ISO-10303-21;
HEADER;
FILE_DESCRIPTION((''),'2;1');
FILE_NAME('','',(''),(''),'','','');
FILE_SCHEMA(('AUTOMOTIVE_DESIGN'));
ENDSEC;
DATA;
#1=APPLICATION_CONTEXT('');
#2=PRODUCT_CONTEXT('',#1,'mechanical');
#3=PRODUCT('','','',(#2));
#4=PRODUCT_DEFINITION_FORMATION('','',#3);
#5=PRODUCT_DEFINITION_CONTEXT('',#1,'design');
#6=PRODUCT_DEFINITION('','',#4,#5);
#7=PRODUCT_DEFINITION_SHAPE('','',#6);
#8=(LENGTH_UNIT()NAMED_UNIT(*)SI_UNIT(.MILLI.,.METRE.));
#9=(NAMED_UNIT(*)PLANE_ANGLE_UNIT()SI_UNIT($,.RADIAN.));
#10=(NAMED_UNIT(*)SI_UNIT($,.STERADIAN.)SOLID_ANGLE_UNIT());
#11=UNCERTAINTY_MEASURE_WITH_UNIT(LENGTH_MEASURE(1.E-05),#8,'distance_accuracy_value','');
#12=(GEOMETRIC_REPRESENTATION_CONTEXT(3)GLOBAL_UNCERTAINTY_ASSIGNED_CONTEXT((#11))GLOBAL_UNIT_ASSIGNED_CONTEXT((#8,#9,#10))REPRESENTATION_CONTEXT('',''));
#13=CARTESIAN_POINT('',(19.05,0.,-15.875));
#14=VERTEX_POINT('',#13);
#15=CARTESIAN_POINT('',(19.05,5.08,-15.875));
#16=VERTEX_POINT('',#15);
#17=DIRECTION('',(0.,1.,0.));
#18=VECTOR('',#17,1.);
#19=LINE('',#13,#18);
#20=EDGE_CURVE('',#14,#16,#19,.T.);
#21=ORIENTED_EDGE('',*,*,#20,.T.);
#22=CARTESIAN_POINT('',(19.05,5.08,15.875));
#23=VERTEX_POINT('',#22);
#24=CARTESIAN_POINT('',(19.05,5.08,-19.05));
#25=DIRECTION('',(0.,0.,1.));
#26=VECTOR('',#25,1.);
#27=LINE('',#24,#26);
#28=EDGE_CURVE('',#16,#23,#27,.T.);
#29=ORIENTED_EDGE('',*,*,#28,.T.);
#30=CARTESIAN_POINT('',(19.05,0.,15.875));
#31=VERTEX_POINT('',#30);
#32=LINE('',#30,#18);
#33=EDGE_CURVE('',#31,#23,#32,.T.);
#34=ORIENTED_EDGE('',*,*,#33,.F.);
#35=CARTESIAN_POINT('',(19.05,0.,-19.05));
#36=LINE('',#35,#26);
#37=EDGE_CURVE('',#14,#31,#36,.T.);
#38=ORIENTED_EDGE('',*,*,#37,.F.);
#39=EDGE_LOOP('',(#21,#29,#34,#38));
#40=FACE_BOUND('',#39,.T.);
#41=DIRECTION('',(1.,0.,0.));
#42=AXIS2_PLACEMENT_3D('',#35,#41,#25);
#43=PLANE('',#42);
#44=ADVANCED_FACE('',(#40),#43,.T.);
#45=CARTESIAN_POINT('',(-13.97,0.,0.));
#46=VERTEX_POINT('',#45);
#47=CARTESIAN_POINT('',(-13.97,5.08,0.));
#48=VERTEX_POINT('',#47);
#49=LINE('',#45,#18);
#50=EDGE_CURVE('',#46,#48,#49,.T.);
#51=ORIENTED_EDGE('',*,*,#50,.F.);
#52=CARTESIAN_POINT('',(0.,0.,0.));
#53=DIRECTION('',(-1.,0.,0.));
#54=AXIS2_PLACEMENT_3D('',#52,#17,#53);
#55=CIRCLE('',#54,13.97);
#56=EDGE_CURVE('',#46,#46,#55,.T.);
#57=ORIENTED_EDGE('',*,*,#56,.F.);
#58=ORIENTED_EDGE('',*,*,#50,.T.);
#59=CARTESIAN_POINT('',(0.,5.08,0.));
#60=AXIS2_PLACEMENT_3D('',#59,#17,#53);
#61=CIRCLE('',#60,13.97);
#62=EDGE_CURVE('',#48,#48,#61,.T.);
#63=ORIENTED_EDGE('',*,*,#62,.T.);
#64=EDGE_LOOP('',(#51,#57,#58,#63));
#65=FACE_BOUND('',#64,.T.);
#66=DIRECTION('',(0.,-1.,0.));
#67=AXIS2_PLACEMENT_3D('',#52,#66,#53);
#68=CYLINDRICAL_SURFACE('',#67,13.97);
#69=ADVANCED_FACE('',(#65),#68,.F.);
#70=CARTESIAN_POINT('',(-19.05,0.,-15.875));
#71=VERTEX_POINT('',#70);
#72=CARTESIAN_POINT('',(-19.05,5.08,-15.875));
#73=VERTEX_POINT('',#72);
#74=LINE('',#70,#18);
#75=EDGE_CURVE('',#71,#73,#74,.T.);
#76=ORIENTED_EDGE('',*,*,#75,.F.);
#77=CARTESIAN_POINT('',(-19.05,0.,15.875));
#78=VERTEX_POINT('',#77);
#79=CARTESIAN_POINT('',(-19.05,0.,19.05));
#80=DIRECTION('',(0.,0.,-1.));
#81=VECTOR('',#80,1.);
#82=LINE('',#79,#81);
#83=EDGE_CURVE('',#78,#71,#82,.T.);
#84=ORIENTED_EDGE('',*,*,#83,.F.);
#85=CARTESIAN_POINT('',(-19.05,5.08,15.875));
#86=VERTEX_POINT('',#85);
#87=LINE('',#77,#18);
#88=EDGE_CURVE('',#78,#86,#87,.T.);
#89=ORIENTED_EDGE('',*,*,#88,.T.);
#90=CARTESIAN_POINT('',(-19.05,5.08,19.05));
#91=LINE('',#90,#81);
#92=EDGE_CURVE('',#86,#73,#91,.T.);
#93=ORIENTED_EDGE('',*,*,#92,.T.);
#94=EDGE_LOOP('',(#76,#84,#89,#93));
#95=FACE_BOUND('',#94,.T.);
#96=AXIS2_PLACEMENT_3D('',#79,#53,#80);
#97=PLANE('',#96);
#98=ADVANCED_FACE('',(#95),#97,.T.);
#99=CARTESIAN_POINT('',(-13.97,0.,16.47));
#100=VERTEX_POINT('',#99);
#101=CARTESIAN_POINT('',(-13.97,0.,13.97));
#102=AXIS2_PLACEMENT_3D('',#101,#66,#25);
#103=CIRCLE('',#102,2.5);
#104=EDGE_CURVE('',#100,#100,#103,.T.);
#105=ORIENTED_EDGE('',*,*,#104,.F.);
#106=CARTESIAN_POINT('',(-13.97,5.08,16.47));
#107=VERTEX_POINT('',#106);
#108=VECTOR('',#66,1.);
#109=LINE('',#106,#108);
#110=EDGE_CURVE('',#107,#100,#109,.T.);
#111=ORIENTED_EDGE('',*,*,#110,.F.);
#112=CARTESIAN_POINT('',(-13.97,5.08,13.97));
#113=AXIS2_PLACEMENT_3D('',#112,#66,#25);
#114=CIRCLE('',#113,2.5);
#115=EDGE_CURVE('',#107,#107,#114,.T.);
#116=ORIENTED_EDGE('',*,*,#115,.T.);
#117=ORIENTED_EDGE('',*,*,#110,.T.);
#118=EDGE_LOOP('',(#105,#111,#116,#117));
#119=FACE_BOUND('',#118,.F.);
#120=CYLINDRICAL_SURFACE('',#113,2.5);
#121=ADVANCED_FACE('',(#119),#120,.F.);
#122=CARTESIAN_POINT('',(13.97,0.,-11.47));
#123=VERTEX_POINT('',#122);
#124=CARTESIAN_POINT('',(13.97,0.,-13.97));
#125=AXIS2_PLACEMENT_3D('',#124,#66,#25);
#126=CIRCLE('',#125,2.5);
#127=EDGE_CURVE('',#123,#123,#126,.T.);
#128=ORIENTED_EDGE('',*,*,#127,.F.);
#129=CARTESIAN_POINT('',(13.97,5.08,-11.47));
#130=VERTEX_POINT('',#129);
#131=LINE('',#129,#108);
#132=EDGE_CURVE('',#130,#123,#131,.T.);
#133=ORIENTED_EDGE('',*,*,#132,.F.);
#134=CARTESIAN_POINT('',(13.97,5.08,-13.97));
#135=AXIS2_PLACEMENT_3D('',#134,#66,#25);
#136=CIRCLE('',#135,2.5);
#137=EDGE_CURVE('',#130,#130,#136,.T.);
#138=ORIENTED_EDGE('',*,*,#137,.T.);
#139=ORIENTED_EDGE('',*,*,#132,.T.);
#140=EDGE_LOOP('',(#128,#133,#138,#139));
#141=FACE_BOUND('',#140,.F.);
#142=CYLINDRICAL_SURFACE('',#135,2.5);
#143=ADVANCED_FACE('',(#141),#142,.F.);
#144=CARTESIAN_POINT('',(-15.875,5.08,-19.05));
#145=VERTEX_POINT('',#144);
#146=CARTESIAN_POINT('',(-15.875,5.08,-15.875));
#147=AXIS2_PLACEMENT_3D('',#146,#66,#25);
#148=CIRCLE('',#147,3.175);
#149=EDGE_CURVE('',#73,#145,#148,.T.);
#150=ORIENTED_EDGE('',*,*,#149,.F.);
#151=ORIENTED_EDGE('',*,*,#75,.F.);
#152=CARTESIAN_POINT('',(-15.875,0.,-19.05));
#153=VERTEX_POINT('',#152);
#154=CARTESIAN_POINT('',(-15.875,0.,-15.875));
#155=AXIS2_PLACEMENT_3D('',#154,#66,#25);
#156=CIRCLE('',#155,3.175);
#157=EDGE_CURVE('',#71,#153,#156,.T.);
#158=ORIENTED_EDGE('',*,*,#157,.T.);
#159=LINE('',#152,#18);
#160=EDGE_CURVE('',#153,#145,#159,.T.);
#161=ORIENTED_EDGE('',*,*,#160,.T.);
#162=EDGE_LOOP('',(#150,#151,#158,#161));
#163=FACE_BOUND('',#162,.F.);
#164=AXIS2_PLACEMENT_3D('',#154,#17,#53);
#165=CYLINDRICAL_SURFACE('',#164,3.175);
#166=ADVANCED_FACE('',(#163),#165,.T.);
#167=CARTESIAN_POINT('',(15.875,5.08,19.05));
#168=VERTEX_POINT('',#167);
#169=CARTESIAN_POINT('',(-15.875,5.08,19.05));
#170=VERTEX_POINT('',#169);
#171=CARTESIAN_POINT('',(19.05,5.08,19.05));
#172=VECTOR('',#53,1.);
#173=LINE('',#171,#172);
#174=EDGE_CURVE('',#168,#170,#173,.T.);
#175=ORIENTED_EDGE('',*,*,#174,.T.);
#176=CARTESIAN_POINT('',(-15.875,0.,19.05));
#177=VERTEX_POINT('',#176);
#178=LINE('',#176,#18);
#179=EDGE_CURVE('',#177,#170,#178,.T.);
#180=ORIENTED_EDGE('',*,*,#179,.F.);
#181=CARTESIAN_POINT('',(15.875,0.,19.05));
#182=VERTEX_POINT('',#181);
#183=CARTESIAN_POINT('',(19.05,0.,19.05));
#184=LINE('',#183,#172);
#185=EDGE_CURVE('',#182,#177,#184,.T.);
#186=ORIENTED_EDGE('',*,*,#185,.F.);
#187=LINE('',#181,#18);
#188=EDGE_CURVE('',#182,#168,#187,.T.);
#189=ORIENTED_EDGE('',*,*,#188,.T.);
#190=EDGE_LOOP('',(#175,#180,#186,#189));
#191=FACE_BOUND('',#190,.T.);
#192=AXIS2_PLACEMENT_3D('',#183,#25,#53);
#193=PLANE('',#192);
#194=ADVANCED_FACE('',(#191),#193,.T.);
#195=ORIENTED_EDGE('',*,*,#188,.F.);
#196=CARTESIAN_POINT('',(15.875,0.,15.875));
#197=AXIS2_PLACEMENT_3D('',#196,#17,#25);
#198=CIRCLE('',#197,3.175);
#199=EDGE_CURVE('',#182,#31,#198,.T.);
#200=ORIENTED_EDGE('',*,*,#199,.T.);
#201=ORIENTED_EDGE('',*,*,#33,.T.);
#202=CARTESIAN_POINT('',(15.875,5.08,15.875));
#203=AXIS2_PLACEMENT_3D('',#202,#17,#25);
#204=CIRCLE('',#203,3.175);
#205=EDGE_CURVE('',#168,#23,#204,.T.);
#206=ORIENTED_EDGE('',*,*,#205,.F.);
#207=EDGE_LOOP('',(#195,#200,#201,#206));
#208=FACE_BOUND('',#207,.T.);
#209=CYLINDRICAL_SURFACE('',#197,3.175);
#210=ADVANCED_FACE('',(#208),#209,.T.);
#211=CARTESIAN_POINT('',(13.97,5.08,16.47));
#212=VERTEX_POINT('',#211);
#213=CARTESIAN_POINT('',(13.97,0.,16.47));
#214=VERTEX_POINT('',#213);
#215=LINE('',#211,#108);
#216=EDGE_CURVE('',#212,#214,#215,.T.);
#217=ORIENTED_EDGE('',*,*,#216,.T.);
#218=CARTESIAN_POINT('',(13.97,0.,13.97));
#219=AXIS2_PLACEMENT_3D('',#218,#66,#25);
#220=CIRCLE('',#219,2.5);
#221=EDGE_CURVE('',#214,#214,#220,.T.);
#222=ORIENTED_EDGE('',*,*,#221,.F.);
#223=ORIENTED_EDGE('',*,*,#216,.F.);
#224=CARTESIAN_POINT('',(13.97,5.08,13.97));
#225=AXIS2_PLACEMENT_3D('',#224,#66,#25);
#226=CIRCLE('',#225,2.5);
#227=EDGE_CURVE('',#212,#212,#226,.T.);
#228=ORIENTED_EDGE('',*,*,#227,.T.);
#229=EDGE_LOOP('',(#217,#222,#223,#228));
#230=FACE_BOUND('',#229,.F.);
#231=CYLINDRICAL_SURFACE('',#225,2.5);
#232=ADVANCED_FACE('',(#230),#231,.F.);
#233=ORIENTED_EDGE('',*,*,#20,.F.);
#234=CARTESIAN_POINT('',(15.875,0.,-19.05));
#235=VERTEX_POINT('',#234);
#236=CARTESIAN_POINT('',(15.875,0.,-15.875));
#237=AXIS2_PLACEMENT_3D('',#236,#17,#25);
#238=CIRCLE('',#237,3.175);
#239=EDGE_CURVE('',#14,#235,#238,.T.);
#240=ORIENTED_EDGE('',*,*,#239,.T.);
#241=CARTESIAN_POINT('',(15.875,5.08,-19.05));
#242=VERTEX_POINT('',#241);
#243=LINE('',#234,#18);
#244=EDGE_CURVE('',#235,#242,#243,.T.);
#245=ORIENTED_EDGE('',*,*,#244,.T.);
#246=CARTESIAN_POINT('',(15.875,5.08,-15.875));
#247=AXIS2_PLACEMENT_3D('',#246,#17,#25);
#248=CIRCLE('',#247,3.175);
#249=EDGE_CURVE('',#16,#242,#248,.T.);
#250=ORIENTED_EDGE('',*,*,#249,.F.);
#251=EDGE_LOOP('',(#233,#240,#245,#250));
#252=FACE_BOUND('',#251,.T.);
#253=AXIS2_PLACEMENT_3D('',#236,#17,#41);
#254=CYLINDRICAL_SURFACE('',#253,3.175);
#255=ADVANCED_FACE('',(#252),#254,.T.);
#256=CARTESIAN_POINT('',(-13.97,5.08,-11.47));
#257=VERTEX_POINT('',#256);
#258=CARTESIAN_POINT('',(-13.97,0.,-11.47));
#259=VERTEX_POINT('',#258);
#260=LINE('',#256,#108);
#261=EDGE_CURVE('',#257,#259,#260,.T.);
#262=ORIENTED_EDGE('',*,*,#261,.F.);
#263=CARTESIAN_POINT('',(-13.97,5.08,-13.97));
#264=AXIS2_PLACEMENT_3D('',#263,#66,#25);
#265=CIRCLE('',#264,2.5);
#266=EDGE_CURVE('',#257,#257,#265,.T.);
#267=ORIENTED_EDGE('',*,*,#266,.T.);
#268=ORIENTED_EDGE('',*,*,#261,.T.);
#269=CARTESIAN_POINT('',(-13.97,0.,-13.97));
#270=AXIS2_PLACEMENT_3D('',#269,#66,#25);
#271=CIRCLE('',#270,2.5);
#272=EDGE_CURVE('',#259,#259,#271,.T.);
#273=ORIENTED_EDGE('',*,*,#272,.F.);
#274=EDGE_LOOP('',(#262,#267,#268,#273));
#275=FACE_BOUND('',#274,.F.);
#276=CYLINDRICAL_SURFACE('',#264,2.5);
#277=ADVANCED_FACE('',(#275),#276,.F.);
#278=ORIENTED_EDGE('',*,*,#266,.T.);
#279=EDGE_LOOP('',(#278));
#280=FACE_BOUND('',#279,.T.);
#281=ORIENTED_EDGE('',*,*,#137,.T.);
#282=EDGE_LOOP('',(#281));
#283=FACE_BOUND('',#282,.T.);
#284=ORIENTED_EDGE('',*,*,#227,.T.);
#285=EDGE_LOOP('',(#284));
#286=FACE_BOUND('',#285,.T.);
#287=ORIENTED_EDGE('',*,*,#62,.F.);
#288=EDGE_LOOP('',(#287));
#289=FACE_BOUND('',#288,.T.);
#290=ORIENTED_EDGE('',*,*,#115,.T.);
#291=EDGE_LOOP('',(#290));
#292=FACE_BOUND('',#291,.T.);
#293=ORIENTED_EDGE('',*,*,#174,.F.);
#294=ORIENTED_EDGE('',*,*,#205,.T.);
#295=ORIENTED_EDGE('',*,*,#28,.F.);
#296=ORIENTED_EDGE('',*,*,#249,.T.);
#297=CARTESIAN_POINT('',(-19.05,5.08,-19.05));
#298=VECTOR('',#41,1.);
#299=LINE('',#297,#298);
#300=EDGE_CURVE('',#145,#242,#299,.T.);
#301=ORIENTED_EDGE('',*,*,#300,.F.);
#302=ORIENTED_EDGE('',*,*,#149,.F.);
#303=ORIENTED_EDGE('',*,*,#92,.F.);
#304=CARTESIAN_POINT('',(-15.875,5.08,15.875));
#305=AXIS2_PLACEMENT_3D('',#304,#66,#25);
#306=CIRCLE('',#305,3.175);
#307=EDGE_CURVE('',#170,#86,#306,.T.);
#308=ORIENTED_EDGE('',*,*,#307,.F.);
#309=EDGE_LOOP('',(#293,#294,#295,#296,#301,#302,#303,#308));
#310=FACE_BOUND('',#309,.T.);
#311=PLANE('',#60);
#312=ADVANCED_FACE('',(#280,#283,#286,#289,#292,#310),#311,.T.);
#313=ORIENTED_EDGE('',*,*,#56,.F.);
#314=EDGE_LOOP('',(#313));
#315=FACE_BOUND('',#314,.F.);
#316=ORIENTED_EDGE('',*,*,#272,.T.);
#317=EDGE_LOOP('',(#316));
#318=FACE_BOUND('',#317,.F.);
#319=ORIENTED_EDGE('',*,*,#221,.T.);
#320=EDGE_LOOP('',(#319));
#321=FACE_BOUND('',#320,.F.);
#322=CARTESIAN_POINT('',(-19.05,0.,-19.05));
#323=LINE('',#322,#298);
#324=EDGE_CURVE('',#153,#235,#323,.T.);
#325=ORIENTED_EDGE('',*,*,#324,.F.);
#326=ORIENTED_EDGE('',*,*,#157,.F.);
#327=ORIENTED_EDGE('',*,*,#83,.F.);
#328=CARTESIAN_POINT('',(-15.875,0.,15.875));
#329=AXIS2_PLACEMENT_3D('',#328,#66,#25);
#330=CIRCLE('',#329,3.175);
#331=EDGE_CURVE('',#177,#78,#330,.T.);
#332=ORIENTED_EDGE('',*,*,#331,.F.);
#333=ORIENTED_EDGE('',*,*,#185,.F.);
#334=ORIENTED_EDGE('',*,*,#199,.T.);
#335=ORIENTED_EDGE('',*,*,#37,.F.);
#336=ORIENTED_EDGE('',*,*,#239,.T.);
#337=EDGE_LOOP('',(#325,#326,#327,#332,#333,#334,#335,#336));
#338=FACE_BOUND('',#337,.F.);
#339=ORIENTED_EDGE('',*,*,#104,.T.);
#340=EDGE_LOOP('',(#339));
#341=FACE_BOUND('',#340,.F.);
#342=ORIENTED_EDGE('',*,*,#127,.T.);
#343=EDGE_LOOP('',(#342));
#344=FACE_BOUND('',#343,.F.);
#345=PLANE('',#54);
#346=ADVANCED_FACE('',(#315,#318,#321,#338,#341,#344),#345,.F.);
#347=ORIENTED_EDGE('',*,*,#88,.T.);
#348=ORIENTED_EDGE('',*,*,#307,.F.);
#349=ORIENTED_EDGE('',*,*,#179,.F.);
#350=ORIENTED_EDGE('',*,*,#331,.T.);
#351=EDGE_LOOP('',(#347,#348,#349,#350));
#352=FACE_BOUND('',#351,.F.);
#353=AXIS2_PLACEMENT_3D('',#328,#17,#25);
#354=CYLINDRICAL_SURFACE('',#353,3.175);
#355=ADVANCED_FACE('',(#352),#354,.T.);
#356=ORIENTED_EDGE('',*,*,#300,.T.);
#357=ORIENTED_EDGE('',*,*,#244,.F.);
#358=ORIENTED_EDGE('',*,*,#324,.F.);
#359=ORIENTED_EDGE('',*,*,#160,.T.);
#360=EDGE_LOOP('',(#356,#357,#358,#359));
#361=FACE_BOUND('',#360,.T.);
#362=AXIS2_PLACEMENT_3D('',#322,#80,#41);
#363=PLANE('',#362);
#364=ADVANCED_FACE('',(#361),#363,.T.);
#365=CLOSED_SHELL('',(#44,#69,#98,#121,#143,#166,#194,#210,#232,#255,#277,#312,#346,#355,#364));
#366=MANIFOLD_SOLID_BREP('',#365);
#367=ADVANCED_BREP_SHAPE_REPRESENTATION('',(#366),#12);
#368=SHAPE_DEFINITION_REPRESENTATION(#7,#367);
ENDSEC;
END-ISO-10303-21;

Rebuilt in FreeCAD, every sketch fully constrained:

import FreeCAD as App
import Part
import Sketcher
Q = App.Units.Quantity


def edges_at(feature, points):
    """Names of the edges that pass closest to the given points."""
    edges = feature.Shape.Edges
    near = lambda p: min(range(len(edges)), key=lambda i: edges[i].distToShape(Part.Vertex(*p))[0])
    return sorted({f"Edge{near(p) + 1}" for p in points})

doc = App.newDocument("Part")
body = doc.addObject("PartDesign::Body", "Body")

# Sketch on XZ plane
sketch1 = doc.addObject("Sketcher::SketchObject", "Sketch")
body.addObject(sketch1)
sketch1.AttachmentSupport = (doc.XZ_Plane, [""])
sketch1.MapMode = "FlatFace"
sketch1.addGeometry(Part.LineSegment(App.Vector(-19, 19, 0), App.Vector(19, 19, 0)), False)
sketch1.addGeometry(Part.LineSegment(App.Vector(19, 19, 0), App.Vector(19, -19, 0)), False)
sketch1.addGeometry(Part.LineSegment(App.Vector(19, -19, 0), App.Vector(-19, -19, 0)), False)
sketch1.addGeometry(Part.LineSegment(App.Vector(-19, -19, 0), App.Vector(-19, 19, 0)), False)
sketch1.addGeometry(Part.Circle(App.Vector(0, 0, 0), App.Vector(0, 0, 1), 14), False)
sketch1.addConstraint(Sketcher.Constraint("Coincident", 0, 2, 1, 1))
sketch1.addConstraint(Sketcher.Constraint("Coincident", 1, 2, 2, 1))
sketch1.addConstraint(Sketcher.Constraint("Coincident", 2, 2, 3, 1))
sketch1.addConstraint(Sketcher.Constraint("Coincident", 3, 2, 0, 1))
sketch1.addConstraint(Sketcher.Constraint("Horizontal", 0))
sketch1.addConstraint(Sketcher.Constraint("Vertical", 1))
sketch1.addConstraint(Sketcher.Constraint("Horizontal", 2))
sketch1.addConstraint(Sketcher.Constraint("Vertical", 3))
sketch1.addConstraint(Sketcher.Constraint("Coincident", 4, 3, -1, 1))
sketch1.addConstraint(Sketcher.Constraint("Symmetric", 0, 2, 2, 2, -1, 1))
sketch1.addConstraint(Sketcher.Constraint("Equal", 2, 1))
sketch1.addConstraint(Sketcher.Constraint("Diameter", 4, Q("1.1 in")))
sketch1.addConstraint(Sketcher.Constraint("DistanceX", 0, 1, 0, 2, Q("1.5 in")))
pad1 = doc.addObject("PartDesign::Pad", "Pad")
body.addObject(pad1)
pad1.Profile = sketch1
pad1.Length = Q("0.2 in")
pad1.Reversed = True

# Sketch on XZ plane
sketch2 = doc.addObject("Sketcher::SketchObject", "Sketch001")
body.addObject(sketch2)
sketch2.AttachmentSupport = (doc.XZ_Plane, [""])
sketch2.MapMode = "FlatFace"
sketch2.AttachmentOffset = App.Placement(App.Vector(0, 0, -0.2 * 25.4), App.Rotation())
sketch2.addGeometry(Part.Circle(App.Vector(-14, 14, 0), App.Vector(0, 0, 1), 2.5), False)
sketch2.addGeometry(Part.Circle(App.Vector(14, 14, 0), App.Vector(0, 0, 1), 2.5), False)
sketch2.addGeometry(Part.Circle(App.Vector(14, -14, 0), App.Vector(0, 0, 1), 2.5), False)
sketch2.addGeometry(Part.Circle(App.Vector(-14, -14, 0), App.Vector(0, 0, 1), 2.5), False)
sketch2.addConstraint(Sketcher.Constraint("Equal", 0, 1))
sketch2.addConstraint(Sketcher.Constraint("Equal", 1, 2))
sketch2.addConstraint(Sketcher.Constraint("Equal", 2, 3))
sketch2.addConstraint(Sketcher.Constraint("Symmetric", 0, 3, 2, 3, -1, 1))
sketch2.addConstraint(Sketcher.Constraint("Symmetric", 1, 3, 3, 3, -1, 1))
sketch2.addConstraint(Sketcher.Constraint("Symmetric", 0, 3, 1, 3, -2))
sketch2.addConstraint(Sketcher.Constraint("DistanceX", 0, 3, 1, 3, Q("1.1 in")))
sketch2.addConstraint(Sketcher.Constraint("DistanceY", 2, 3, 1, 3, Q("1.1 in")))
sketch2.addConstraint(Sketcher.Constraint("Diameter", 0, Q("5 mm")))
doc.recompute()
hole = doc.addObject("PartDesign::Hole", "Hole")
body.addObject(hole)
hole.Profile = sketch2
hole.ThreadType = "None"
hole.Diameter = 5
hole.DepthType = "ThroughAll"
hole.Reversed = True
doc.recompute()

fillet = doc.addObject("PartDesign::Fillet", "Fillet")
body.addObject(fillet)
fillet.Base = (hole, edges_at(hole, [
    (-19.05, 2.54, 19.05),
    (-19.05, 2.54, -19.05),
    (19.05, 2.54, -19.05),
    (19.05, 2.54, 19.05),
]))
fillet.Radius = Q("0.125 in")

doc.recompute()
